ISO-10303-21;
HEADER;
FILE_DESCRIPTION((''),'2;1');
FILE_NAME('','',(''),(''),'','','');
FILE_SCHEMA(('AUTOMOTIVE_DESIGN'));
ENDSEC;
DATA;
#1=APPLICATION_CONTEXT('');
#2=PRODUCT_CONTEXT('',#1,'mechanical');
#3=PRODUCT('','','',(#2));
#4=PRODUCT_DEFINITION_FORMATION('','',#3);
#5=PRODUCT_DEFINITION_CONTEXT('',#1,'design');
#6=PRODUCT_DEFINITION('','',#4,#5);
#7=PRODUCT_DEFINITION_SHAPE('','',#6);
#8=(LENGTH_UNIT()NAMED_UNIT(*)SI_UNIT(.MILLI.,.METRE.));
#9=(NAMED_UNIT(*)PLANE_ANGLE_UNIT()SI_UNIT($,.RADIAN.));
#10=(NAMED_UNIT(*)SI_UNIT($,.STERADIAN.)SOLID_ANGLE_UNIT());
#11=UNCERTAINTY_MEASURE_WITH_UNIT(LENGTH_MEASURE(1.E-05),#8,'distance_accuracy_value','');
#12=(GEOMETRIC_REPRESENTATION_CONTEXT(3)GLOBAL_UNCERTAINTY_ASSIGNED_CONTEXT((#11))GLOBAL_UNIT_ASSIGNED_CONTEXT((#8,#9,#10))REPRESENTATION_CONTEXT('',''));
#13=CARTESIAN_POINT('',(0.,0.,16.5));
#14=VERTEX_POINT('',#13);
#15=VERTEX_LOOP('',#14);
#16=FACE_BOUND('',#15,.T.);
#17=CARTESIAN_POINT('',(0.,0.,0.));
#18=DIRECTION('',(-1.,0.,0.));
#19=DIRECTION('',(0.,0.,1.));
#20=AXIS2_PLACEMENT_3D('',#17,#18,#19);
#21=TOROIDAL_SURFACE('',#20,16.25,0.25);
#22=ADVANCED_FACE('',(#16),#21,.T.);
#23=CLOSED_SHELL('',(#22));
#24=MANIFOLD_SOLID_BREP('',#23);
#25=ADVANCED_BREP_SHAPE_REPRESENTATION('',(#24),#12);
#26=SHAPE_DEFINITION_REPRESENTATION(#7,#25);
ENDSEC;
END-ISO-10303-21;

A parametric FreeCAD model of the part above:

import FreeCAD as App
import Part
import Sketcher

doc = App.newDocument("Part")
body = doc.addObject("PartDesign::Body", "Body")

# Sketch on XZ plane
sketch1 = doc.addObject("Sketcher::SketchObject", "Sketch")
body.addObject(sketch1)
sketch1.AttachmentSupport = (doc.XZ_Plane, [""])
sketch1.MapMode = "FlatFace"
sketch1.addGeometry(Part.Circle(App.Vector(0, -16.25, 0), App.Vector(0, 0, 1), 0.25), False)
sketch1.addConstraint([
    Sketcher.Constraint("PointOnObject", 0, 3, -2),
    Sketcher.Constraint("Diameter", 0, 0.5),
    Sketcher.Constraint("DistanceY", 0, 3, -1, 1, 16.25),
])
revolution = doc.addObject("PartDesign::Revolution", "Revolution")
body.addObject(revolution)
revolution.Profile = sketch1
revolution.ReferenceAxis = (sketch1, ["H_Axis"])
revolution.Angle = 360

doc.recompute()
